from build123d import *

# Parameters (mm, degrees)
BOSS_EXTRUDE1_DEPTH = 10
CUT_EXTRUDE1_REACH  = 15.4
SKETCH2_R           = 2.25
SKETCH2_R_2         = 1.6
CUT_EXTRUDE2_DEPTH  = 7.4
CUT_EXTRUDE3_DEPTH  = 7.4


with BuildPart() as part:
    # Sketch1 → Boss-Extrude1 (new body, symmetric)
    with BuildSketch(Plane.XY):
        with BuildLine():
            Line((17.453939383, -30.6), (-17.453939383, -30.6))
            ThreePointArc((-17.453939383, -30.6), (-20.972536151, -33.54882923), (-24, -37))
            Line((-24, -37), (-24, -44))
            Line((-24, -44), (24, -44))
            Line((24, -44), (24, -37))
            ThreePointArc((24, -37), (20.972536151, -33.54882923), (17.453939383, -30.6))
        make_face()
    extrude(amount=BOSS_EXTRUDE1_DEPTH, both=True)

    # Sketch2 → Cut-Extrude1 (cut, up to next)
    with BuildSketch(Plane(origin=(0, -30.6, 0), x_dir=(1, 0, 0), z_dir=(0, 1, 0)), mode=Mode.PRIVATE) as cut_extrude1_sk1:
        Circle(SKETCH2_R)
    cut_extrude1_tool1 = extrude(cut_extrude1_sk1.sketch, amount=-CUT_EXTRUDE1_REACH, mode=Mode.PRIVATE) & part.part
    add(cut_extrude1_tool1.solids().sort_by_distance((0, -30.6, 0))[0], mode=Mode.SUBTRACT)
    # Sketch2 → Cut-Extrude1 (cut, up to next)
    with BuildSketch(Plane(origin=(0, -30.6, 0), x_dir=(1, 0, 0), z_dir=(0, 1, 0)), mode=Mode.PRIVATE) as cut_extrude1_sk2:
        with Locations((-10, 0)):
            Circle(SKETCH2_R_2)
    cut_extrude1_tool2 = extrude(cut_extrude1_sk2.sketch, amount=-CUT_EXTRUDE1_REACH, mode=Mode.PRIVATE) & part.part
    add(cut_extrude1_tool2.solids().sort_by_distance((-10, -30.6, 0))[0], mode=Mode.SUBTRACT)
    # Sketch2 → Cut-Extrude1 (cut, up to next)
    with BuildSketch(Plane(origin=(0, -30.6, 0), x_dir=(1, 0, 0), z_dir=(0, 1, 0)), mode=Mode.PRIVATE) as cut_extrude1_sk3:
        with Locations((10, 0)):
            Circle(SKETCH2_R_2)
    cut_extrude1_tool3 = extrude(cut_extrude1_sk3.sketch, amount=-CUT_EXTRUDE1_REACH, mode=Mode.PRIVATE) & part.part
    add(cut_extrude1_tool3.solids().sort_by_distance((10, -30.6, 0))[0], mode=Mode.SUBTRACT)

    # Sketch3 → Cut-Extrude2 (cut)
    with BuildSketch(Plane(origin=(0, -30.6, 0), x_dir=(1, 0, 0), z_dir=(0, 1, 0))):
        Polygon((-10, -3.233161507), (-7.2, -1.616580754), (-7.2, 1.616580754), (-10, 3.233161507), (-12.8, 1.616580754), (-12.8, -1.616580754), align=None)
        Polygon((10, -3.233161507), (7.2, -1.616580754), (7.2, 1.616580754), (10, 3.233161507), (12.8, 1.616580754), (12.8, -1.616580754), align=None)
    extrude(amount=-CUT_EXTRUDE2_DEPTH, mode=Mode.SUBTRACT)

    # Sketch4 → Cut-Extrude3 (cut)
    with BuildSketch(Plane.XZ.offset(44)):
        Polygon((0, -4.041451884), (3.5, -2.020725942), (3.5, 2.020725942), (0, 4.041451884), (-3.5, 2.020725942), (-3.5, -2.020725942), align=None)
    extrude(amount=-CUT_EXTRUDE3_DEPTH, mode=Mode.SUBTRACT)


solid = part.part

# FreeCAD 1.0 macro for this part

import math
import FreeCAD as App
import Part
import Sketcher
Q = App.Units.Quantity


def add_polygon(sketch, points):
    """Adds a closed chain of lines whose ends are joined by coincident constraints."""
    first, n = sketch.GeometryCount, len(points)
    for a, b in zip(points, points[1:] + points[:1]):
        sketch.addGeometry(Part.LineSegment(App.Vector(*a, 0), App.Vector(*b, 0)), False)
    for i in range(n):
        sketch.addConstraint(Sketcher.Constraint("Coincident", first + i, 2, first + (i + 1) % n, 1))

doc = App.newDocument("Part")
body = doc.addObject("PartDesign::Body", "Body")

# Sketch on XY plane
sketch1 = body.newObject("Sketcher::SketchObject", "Sketch")
sketch1.AttachmentSupport = (doc.getObject("XY_Plane"), [""])
sketch1.MapMode = "FlatFace"
sketch1.addGeometry(Part.LineSegment(App.Vector(17.453939, -30.6, 0), App.Vector(-17.453939, -30.6, 0)), False)
sketch1.addGeometry(Part.ArcOfCircle(Part.Circle(App.Vector(0, -55, 0), App.Vector(0, 0, 1), 30), math.radians(125.577103), math.radians(143.130102)), False)
sketch1.addGeometry(Part.LineSegment(App.Vector(-24, -37, 0), App.Vector(-24, -44, 0)), False)
sketch1.addGeometry(Part.LineSegment(App.Vector(-24, -44, 0), App.Vector(24, -44, 0)), False)
sketch1.addGeometry(Part.LineSegment(App.Vector(24, -44, 0), App.Vector(24, -37, 0)), False)
sketch1.addGeometry(Part.ArcOfCircle(Part.Circle(App.Vector(0, -55, 0), App.Vector(0, 0, 1), 30), math.radians(36.869898), math.radians(54.422897)), False)
sketch1.addConstraint(Sketcher.Constraint("Coincident", 0, 2, 1, 1))
sketch1.addConstraint(Sketcher.Constraint("Coincident", 1, 2, 2, 1))
sketch1.addConstraint(Sketcher.Constraint("Coincident", 2, 2, 3, 1))
sketch1.addConstraint(Sketcher.Constraint("Coincident", 3, 2, 4, 1))
sketch1.addConstraint(Sketcher.Constraint("Coincident", 4, 2, 5, 1))
sketch1.addConstraint(Sketcher.Constraint("Coincident", 5, 2, 0, 1))
sketch1.addConstraint(Sketcher.Constraint("Horizontal", 0))
sketch1.addConstraint(Sketcher.Constraint("Vertical", 2))
sketch1.addConstraint(Sketcher.Constraint("Horizontal", 3))
sketch1.addConstraint(Sketcher.Constraint("Vertical", 4))
sketch1.addConstraint(Sketcher.Constraint("Coincident", 5, 3, 1, 3))
sketch1.addConstraint(Sketcher.Constraint("Equal", 1, 5))
sketch1.addConstraint(Sketcher.Constraint("Symmetric", 1, 2, 4, 2, -2))
sketch1.addConstraint(Sketcher.Constraint("Radius", 1, Q("30 mm")))
sketch1.addConstraint(Sketcher.Constraint("DistanceX", 3, 1, 3, 2, Q("48 mm")))
sketch1.addConstraint(Sketcher.Constraint("DistanceY", 2, 2, 2, 1, Q("7 mm")))
sketch1.addConstraint(Sketcher.Constraint("DistanceY", 1, 3, -1, 1, Q("55 mm")))
sketch1.addConstraint(Sketcher.Constraint("DistanceY", 0, 2, -1, 1, Q("30.6 mm")))
pad1 = body.newObject("PartDesign::Pad", "Pad")
pad1.Profile = sketch1
pad1.Length = 20
pad1.Midplane = True

# Sketch on XZ plane
sketch2 = body.newObject("Sketcher::SketchObject", "Sketch001")
sketch2.AttachmentSupport = (doc.getObject("XZ_Plane"), [""])
sketch2.MapMode = "FlatFace"
sketch2.AttachmentOffset = App.Placement(App.Vector(0, 0, 30.6), App.Rotation())
sketch2.addGeometry(Part.Circle(App.Vector(0, 0, 0), App.Vector(0, 0, 1), 2.25), False)
sketch2.addConstraint(Sketcher.Constraint("Coincident", 0, 3, -1, 1))
sketch2.addConstraint(Sketcher.Constraint("Diameter", 0, Q("4.5 mm")))
pocket1 = body.newObject("PartDesign::Pocket", "Pocket")
pocket1.Profile = sketch2
pocket1.Type = "UpToFirst"
pocket1.Reversed = True

# Sketch on XZ plane
sketch3 = body.newObject("Sketcher::SketchObject", "Sketch002")
sketch3.AttachmentSupport = (doc.getObject("XZ_Plane"), [""])
sketch3.MapMode = "FlatFace"
sketch3.AttachmentOffset = App.Placement(App.Vector(0, 0, 30.6), App.Rotation())
sketch3.addGeometry(Part.Circle(App.Vector(-10, 0, 0), App.Vector(0, 0, 1), 1.6), False)
sketch3.addConstraint(Sketcher.Constraint("PointOnObject", 0, 3, -1))
sketch3.addConstraint(Sketcher.Constraint("Diameter", 0, Q("3.2 mm")))
sketch3.addConstraint(Sketcher.Constraint("DistanceX", 0, 3, -1, 1, Q("10 mm")))
pocket2 = body.newObject("PartDesign::Pocket", "Pocket001")
pocket2.Profile = sketch3
pocket2.Type = "UpToFirst"
pocket2.Reversed = True

# Sketch on XZ plane
sketch4 = body.newObject("Sketcher::SketchObject", "Sketch003")
sketch4.AttachmentSupport = (doc.getObject("XZ_Plane"), [""])
sketch4.MapMode = "FlatFace"
sketch4.AttachmentOffset = App.Placement(App.Vector(0, 0, 30.6), App.Rotation())
sketch4.addGeometry(Part.Circle(App.Vector(10, 0, 0), App.Vector(0, 0, 1), 1.6), False)
sketch4.addConstraint(Sketcher.Constraint("PointOnObject", 0, 3, -1))
sketch4.addConstraint(Sketcher.Constraint("Diameter", 0, Q("3.2 mm")))
sketch4.addConstraint(Sketcher.Constraint("DistanceX", -1, 1, 0, 3, Q("10 mm")))
pocket3 = body.newObject("PartDesign::Pocket", "Pocket002")
pocket3.Profile = sketch4
pocket3.Type = "UpToFirst"
pocket3.Reversed = True

# Sketch on XZ plane
sketch5 = body.newObject("Sketcher::SketchObject", "Sketch004")
sketch5.AttachmentSupport = (doc.getObject("XZ_Plane"), [""])
sketch5.MapMode = "FlatFace"
sketch5.AttachmentOffset = App.Placement(App.Vector(0, 0, 30.6), App.Rotation())
add_polygon(sketch5, [(-10, 3.233162), (-7.2, 1.616581), (-7.2, -1.616581), (-10, -3.233162), (-12.8, -1.616581), (-12.8, 1.616581)])  # lines 0-5
add_polygon(sketch5, [(7.2, 1.616581), (10, 3.233162), (12.8, 1.616581), (12.8, -1.616581), (10, -3.233162), (7.2, -1.616581)])  # lines 6-11
sketch5.addConstraint(Sketcher.Constraint("Vertical", 1))
sketch5.addConstraint(Sketcher.Constraint("Vertical", 4))
sketch5.addConstraint(Sketcher.Constraint("Vertical", 8))
sketch5.addConstraint(Sketcher.Constraint("Vertical", 11))
sketch5.addConstraint(Sketcher.Constraint("Symmetric", 2, 2, 6, 2, -1, 1))
sketch5.addConstraint(Sketcher.Constraint("Symmetric", 3, 2, 7, 2, -1, 1))
sketch5.addConstraint(Sketcher.Constraint("Symmetric", 5, 2, 9, 2, -1, 1))
sketch5.addConstraint(Sketcher.Constraint("Symmetric", 0, 2, 10, 2, -1, 1))
sketch5.addConstraint(Sketcher.Constraint("Symmetric", 5, 2, 6, 2, -2))
sketch5.addConstraint(Sketcher.Constraint("Parallel", 0, 3))
sketch5.addConstraint(Sketcher.Constraint("Parallel", 2, 5))
sketch5.addConstraint(Sketcher.Constraint("Parallel", 5, 6))
sketch5.addConstraint(Sketcher.Constraint("Parallel", 6, 9))
sketch5.addConstraint(Sketcher.Constraint("Horizontal", 1, 2, 3, 2))
sketch5.addConstraint(Sketcher.Constraint("Horizontal", 0, 2, 4, 2))
sketch5.addConstraint(Sketcher.Constraint("Angle", 0, Q("-30 deg")))
sketch5.addConstraint(Sketcher.Constraint("DistanceX", 2, 2, -1, 1, Q("10 mm")))
sketch5.addConstraint(Sketcher.Constraint("DistanceX", 0, 2, -1, 1, Q("7.2 mm")))
sketch5.addConstraint(Sketcher.Constraint("DistanceY", 1, 2, 1, 1, Q("3.233162 mm")))
pocket4 = body.newObject("PartDesign::Pocket", "Pocket003")
pocket4.Profile = sketch5
pocket4.Length = 7.4
pocket4.Reversed = True

# Sketch on XZ plane
sketch6 = body.newObject("Sketcher::SketchObject", "Sketch005")
sketch6.AttachmentSupport = (doc.getObject("XZ_Plane"), [""])
sketch6.MapMode = "FlatFace"
sketch6.AttachmentOffset = App.Placement(App.Vector(0, 0, 44), App.Rotation())
add_polygon(sketch6, [(0, -4.041452), (3.5, -2.020726), (3.5, 2.020726), (0, 4.041452), (-3.5, 2.020726), (-3.5, -2.020726)])  # lines 0-5
sketch6.addConstraint(Sketcher.Constraint("Vertical", 1))
sketch6.addConstraint(Sketcher.Constraint("Vertical", 4))
sketch6.addConstraint(Sketcher.Constraint("Symmetric", 0, 2, 3, 2, -1, 1))
sketch6.addConstraint(Sketcher.Constraint("Symmetric", 2, 2, 5, 2, -1, 1))
sketch6.addConstraint(Sketcher.Constraint("PointOnObject", 2, 2, -2))
sketch6.addConstraint(Sketcher.Constraint("Parallel", 2, 5))
sketch6.addConstraint(Sketcher.Constraint("Horizontal", 1, 2, 3, 2))
sketch6.addConstraint(Sketcher.Constraint("Angle", 0, Q("30 deg")))
sketch6.addConstraint(Sketcher.Constraint("DistanceX", 3, 2, 1, 2, Q("7 mm")))
sketch6.addConstraint(Sketcher.Constraint("DistanceY", 1, 1, 1, 2, Q("4.041452 mm")))
pocket5 = body.newObject("PartDesign::Pocket", "Pocket004")
pocket5.Profile = sketch6
pocket5.Length = 7.4

doc.recompute()
